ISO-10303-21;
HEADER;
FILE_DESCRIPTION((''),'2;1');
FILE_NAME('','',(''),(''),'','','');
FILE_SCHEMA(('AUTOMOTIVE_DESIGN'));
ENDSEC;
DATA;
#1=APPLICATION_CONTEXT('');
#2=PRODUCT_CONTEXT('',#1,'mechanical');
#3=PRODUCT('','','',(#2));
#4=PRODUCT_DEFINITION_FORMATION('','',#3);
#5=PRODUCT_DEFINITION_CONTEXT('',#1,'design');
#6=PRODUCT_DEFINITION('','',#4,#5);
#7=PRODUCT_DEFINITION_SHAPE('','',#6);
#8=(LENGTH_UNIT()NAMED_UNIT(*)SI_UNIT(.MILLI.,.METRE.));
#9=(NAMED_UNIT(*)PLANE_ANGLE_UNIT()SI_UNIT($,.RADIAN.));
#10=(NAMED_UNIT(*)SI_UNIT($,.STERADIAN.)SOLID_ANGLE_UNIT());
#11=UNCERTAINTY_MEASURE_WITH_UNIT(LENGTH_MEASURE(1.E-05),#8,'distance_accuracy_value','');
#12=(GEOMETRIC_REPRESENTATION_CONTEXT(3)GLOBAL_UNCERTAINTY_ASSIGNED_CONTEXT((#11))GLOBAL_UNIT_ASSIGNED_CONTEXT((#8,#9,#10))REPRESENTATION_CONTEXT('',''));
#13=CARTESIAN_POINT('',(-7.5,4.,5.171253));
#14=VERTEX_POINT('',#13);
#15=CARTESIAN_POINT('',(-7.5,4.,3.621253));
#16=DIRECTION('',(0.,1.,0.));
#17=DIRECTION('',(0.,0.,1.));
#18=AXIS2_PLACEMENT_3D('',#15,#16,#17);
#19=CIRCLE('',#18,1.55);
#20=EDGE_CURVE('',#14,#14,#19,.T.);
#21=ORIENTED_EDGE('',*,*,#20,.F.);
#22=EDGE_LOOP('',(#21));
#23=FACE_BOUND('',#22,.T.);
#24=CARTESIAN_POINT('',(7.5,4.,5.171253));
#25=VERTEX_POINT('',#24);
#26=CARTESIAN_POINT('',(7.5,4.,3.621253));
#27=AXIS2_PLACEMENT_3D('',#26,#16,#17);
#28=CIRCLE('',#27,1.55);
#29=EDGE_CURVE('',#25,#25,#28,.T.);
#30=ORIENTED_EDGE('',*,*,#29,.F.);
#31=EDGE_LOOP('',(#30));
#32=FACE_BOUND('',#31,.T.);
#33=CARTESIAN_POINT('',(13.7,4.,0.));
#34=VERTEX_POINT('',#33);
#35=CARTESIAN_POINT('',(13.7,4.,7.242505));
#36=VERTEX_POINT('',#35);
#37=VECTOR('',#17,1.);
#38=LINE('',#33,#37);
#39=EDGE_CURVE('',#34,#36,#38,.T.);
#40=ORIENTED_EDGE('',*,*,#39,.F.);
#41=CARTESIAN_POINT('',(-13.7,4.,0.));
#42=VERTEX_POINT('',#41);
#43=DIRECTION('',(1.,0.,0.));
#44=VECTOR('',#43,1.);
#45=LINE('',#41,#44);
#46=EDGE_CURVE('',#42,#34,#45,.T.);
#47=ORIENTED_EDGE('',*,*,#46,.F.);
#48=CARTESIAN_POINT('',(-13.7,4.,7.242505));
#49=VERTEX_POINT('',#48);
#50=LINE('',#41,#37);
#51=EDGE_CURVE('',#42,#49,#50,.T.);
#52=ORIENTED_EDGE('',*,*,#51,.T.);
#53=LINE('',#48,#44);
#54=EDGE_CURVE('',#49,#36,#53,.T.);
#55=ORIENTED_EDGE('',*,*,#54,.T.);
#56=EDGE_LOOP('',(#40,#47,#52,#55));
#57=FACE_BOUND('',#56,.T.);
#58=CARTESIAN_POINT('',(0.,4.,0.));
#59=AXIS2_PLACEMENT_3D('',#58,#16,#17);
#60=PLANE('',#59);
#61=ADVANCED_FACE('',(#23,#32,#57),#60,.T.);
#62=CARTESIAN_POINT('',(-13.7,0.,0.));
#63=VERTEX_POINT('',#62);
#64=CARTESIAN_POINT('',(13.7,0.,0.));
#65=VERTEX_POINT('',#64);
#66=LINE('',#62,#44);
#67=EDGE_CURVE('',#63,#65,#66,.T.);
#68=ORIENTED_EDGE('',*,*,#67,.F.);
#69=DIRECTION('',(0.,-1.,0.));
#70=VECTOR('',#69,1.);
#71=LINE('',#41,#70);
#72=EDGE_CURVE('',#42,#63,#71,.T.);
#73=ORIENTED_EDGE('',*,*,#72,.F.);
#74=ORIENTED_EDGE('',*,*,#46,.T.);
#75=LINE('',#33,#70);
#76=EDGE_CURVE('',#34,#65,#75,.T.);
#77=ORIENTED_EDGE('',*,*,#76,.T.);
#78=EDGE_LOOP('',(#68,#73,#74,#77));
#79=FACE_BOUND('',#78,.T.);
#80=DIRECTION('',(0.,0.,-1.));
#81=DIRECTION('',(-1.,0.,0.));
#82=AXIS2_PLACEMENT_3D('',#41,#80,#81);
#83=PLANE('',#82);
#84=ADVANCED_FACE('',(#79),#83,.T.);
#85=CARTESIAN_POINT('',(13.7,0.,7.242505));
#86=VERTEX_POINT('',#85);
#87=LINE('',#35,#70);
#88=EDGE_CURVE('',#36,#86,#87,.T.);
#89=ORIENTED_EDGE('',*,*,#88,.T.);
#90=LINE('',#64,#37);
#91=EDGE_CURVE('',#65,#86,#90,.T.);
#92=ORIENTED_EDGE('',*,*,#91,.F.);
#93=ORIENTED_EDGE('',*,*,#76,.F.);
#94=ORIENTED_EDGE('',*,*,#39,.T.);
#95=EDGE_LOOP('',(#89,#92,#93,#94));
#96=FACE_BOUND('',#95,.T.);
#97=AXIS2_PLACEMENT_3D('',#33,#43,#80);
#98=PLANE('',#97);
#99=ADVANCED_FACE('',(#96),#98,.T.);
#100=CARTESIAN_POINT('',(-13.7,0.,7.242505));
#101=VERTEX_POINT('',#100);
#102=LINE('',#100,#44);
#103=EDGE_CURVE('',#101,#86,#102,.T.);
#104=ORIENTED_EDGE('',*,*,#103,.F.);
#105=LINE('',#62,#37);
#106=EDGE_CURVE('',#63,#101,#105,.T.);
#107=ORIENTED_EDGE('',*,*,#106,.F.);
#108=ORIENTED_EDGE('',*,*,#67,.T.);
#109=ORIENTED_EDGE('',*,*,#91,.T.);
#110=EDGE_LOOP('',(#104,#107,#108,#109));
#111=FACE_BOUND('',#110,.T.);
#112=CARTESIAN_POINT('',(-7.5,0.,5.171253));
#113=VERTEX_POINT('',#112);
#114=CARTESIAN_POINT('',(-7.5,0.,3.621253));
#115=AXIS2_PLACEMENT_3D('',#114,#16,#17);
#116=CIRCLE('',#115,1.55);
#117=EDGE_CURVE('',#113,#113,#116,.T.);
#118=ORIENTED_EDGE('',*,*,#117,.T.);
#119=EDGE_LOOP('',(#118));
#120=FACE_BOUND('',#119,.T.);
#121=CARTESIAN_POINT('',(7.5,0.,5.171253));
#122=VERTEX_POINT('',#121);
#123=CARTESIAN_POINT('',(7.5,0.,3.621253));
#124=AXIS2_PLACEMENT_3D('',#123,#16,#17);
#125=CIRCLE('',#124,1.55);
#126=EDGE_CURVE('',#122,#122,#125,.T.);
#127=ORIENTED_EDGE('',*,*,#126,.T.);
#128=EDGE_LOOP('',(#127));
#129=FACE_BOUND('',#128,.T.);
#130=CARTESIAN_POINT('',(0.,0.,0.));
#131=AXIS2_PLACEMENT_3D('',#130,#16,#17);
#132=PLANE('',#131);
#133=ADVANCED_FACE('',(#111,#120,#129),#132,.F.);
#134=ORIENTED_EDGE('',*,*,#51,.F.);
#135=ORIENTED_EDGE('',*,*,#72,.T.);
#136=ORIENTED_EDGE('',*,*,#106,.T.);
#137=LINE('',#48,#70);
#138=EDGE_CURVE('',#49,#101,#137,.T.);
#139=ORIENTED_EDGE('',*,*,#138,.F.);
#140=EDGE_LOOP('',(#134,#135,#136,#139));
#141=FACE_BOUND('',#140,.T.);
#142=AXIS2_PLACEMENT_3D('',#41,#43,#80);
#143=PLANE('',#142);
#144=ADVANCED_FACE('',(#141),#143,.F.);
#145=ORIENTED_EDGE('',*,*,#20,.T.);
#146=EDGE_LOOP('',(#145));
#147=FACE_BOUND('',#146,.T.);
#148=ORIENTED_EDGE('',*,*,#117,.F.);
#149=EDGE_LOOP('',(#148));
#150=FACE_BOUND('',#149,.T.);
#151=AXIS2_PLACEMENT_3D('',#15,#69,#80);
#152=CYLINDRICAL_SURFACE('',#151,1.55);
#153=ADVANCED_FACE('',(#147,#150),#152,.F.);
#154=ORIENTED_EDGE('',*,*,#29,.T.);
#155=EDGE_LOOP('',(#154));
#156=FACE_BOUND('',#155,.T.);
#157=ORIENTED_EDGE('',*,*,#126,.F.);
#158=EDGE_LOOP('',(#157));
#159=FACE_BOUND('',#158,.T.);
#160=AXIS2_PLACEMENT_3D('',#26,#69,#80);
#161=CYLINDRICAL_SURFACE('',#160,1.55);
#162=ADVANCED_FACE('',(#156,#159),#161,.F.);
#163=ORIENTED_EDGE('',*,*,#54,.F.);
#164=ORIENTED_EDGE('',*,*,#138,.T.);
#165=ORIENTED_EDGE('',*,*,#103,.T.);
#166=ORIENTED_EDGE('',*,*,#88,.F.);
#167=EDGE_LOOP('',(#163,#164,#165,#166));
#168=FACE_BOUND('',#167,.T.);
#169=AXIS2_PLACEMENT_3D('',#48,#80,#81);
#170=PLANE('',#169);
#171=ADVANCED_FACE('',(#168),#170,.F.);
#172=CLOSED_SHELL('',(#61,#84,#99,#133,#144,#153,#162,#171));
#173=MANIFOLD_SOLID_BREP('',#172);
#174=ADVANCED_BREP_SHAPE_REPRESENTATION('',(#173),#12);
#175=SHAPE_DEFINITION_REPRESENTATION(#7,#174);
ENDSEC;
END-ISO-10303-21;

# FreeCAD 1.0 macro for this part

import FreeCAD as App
import Part
import Sketcher
Q = App.Units.Quantity

doc = App.newDocument("Part")
params = doc.addObject("Spreadsheet::Sheet", "Params")
for row, (alias, value) in enumerate([
    ("sketch1_diameter", "3.1 mm"),
    ("sketch1_width", "27.4 mm"),
    ("pad1_length", "4 mm"),
], start=1):
    params.set(f"A{row}", alias)
    params.set(f"B{row}", "=" + value)
    params.setAlias(f"B{row}", alias)

body = doc.addObject("PartDesign::Body", "Body")

sketch1 = doc.addObject("Sketcher::SketchObject", "Sketch")
body.addObject(sketch1)
sketch1.AttachmentSupport = (doc.XZ_Plane, [""])
sketch1.MapMode = "FlatFace"
sketch1.addGeometry(Part.LineSegment(App.Vector(-13.7, 0, 0), App.Vector(-13.7, 7.242505, 0)), False)
sketch1.addGeometry(Part.LineSegment(App.Vector(-13.7, 7.242505, 0), App.Vector(13.7, 7.242505, 0)), False)
sketch1.addGeometry(Part.LineSegment(App.Vector(13.7, 7.242505, 0), App.Vector(13.7, 0, 0)), False)
sketch1.addGeometry(Part.LineSegment(App.Vector(13.7, 0, 0), App.Vector(-13.7, 0, 0)), False)
sketch1.addGeometry(Part.Circle(App.Vector(-7.5, 3.621253, 0), App.Vector(0, 0, 1), 1.55), False)
sketch1.addGeometry(Part.Circle(App.Vector(7.5, 3.621253, 0), App.Vector(0, 0, 1), 1.55), False)
sketch1.addConstraint(Sketcher.Constraint("Coincident", 0, 2, 1, 1))
sketch1.addConstraint(Sketcher.Constraint("Coincident", 1, 2, 2, 1))
sketch1.addConstraint(Sketcher.Constraint("Coincident", 2, 2, 3, 1))
sketch1.addConstraint(Sketcher.Constraint("Coincident", 3, 2, 0, 1))
sketch1.addConstraint(Sketcher.Constraint("Vertical", 0))
sketch1.addConstraint(Sketcher.Constraint("Horizontal", 1))
sketch1.addConstraint(Sketcher.Constraint("Vertical", 2))
sketch1.addConstraint(Sketcher.Constraint("Horizontal", 3))
sketch1.addConstraint(Sketcher.Constraint("Equal", 4, 5))
sketch1.addConstraint(Sketcher.Constraint("Symmetric", 2, 2, 3, 2, -1, 1))
sketch1.addConstraint(Sketcher.Constraint("Symmetric", 4, 3, 5, 3, -2))
sketch1.addConstraint(Sketcher.Constraint("Diameter", 4, Q("3.1 mm")))
sketch1.addConstraint(Sketcher.Constraint("DistanceX", 1, 1, 1, 2, Q("27.4 mm")))
sketch1.addConstraint(Sketcher.Constraint("DistanceX", 4, 3, 5, 3, Q("15 mm")))
sketch1.addConstraint(Sketcher.Constraint("DistanceY", 0, 1, 0, 2, Q("7.242505 mm")))
sketch1.addConstraint(Sketcher.Constraint("DistanceY", -1, 1, 4, 3, Q("3.621253 mm")))
sketch1.setExpression("Constraints[11]", "Params.sketch1_diameter")
sketch1.setExpression("Constraints[12]", "Params.sketch1_width")
pad1 = doc.addObject("PartDesign::Pad", "Pad")
body.addObject(pad1)
pad1.Profile = sketch1
pad1.setExpression("Length", "Params.pad1_length")
pad1.Reversed = True

doc.recompute()
